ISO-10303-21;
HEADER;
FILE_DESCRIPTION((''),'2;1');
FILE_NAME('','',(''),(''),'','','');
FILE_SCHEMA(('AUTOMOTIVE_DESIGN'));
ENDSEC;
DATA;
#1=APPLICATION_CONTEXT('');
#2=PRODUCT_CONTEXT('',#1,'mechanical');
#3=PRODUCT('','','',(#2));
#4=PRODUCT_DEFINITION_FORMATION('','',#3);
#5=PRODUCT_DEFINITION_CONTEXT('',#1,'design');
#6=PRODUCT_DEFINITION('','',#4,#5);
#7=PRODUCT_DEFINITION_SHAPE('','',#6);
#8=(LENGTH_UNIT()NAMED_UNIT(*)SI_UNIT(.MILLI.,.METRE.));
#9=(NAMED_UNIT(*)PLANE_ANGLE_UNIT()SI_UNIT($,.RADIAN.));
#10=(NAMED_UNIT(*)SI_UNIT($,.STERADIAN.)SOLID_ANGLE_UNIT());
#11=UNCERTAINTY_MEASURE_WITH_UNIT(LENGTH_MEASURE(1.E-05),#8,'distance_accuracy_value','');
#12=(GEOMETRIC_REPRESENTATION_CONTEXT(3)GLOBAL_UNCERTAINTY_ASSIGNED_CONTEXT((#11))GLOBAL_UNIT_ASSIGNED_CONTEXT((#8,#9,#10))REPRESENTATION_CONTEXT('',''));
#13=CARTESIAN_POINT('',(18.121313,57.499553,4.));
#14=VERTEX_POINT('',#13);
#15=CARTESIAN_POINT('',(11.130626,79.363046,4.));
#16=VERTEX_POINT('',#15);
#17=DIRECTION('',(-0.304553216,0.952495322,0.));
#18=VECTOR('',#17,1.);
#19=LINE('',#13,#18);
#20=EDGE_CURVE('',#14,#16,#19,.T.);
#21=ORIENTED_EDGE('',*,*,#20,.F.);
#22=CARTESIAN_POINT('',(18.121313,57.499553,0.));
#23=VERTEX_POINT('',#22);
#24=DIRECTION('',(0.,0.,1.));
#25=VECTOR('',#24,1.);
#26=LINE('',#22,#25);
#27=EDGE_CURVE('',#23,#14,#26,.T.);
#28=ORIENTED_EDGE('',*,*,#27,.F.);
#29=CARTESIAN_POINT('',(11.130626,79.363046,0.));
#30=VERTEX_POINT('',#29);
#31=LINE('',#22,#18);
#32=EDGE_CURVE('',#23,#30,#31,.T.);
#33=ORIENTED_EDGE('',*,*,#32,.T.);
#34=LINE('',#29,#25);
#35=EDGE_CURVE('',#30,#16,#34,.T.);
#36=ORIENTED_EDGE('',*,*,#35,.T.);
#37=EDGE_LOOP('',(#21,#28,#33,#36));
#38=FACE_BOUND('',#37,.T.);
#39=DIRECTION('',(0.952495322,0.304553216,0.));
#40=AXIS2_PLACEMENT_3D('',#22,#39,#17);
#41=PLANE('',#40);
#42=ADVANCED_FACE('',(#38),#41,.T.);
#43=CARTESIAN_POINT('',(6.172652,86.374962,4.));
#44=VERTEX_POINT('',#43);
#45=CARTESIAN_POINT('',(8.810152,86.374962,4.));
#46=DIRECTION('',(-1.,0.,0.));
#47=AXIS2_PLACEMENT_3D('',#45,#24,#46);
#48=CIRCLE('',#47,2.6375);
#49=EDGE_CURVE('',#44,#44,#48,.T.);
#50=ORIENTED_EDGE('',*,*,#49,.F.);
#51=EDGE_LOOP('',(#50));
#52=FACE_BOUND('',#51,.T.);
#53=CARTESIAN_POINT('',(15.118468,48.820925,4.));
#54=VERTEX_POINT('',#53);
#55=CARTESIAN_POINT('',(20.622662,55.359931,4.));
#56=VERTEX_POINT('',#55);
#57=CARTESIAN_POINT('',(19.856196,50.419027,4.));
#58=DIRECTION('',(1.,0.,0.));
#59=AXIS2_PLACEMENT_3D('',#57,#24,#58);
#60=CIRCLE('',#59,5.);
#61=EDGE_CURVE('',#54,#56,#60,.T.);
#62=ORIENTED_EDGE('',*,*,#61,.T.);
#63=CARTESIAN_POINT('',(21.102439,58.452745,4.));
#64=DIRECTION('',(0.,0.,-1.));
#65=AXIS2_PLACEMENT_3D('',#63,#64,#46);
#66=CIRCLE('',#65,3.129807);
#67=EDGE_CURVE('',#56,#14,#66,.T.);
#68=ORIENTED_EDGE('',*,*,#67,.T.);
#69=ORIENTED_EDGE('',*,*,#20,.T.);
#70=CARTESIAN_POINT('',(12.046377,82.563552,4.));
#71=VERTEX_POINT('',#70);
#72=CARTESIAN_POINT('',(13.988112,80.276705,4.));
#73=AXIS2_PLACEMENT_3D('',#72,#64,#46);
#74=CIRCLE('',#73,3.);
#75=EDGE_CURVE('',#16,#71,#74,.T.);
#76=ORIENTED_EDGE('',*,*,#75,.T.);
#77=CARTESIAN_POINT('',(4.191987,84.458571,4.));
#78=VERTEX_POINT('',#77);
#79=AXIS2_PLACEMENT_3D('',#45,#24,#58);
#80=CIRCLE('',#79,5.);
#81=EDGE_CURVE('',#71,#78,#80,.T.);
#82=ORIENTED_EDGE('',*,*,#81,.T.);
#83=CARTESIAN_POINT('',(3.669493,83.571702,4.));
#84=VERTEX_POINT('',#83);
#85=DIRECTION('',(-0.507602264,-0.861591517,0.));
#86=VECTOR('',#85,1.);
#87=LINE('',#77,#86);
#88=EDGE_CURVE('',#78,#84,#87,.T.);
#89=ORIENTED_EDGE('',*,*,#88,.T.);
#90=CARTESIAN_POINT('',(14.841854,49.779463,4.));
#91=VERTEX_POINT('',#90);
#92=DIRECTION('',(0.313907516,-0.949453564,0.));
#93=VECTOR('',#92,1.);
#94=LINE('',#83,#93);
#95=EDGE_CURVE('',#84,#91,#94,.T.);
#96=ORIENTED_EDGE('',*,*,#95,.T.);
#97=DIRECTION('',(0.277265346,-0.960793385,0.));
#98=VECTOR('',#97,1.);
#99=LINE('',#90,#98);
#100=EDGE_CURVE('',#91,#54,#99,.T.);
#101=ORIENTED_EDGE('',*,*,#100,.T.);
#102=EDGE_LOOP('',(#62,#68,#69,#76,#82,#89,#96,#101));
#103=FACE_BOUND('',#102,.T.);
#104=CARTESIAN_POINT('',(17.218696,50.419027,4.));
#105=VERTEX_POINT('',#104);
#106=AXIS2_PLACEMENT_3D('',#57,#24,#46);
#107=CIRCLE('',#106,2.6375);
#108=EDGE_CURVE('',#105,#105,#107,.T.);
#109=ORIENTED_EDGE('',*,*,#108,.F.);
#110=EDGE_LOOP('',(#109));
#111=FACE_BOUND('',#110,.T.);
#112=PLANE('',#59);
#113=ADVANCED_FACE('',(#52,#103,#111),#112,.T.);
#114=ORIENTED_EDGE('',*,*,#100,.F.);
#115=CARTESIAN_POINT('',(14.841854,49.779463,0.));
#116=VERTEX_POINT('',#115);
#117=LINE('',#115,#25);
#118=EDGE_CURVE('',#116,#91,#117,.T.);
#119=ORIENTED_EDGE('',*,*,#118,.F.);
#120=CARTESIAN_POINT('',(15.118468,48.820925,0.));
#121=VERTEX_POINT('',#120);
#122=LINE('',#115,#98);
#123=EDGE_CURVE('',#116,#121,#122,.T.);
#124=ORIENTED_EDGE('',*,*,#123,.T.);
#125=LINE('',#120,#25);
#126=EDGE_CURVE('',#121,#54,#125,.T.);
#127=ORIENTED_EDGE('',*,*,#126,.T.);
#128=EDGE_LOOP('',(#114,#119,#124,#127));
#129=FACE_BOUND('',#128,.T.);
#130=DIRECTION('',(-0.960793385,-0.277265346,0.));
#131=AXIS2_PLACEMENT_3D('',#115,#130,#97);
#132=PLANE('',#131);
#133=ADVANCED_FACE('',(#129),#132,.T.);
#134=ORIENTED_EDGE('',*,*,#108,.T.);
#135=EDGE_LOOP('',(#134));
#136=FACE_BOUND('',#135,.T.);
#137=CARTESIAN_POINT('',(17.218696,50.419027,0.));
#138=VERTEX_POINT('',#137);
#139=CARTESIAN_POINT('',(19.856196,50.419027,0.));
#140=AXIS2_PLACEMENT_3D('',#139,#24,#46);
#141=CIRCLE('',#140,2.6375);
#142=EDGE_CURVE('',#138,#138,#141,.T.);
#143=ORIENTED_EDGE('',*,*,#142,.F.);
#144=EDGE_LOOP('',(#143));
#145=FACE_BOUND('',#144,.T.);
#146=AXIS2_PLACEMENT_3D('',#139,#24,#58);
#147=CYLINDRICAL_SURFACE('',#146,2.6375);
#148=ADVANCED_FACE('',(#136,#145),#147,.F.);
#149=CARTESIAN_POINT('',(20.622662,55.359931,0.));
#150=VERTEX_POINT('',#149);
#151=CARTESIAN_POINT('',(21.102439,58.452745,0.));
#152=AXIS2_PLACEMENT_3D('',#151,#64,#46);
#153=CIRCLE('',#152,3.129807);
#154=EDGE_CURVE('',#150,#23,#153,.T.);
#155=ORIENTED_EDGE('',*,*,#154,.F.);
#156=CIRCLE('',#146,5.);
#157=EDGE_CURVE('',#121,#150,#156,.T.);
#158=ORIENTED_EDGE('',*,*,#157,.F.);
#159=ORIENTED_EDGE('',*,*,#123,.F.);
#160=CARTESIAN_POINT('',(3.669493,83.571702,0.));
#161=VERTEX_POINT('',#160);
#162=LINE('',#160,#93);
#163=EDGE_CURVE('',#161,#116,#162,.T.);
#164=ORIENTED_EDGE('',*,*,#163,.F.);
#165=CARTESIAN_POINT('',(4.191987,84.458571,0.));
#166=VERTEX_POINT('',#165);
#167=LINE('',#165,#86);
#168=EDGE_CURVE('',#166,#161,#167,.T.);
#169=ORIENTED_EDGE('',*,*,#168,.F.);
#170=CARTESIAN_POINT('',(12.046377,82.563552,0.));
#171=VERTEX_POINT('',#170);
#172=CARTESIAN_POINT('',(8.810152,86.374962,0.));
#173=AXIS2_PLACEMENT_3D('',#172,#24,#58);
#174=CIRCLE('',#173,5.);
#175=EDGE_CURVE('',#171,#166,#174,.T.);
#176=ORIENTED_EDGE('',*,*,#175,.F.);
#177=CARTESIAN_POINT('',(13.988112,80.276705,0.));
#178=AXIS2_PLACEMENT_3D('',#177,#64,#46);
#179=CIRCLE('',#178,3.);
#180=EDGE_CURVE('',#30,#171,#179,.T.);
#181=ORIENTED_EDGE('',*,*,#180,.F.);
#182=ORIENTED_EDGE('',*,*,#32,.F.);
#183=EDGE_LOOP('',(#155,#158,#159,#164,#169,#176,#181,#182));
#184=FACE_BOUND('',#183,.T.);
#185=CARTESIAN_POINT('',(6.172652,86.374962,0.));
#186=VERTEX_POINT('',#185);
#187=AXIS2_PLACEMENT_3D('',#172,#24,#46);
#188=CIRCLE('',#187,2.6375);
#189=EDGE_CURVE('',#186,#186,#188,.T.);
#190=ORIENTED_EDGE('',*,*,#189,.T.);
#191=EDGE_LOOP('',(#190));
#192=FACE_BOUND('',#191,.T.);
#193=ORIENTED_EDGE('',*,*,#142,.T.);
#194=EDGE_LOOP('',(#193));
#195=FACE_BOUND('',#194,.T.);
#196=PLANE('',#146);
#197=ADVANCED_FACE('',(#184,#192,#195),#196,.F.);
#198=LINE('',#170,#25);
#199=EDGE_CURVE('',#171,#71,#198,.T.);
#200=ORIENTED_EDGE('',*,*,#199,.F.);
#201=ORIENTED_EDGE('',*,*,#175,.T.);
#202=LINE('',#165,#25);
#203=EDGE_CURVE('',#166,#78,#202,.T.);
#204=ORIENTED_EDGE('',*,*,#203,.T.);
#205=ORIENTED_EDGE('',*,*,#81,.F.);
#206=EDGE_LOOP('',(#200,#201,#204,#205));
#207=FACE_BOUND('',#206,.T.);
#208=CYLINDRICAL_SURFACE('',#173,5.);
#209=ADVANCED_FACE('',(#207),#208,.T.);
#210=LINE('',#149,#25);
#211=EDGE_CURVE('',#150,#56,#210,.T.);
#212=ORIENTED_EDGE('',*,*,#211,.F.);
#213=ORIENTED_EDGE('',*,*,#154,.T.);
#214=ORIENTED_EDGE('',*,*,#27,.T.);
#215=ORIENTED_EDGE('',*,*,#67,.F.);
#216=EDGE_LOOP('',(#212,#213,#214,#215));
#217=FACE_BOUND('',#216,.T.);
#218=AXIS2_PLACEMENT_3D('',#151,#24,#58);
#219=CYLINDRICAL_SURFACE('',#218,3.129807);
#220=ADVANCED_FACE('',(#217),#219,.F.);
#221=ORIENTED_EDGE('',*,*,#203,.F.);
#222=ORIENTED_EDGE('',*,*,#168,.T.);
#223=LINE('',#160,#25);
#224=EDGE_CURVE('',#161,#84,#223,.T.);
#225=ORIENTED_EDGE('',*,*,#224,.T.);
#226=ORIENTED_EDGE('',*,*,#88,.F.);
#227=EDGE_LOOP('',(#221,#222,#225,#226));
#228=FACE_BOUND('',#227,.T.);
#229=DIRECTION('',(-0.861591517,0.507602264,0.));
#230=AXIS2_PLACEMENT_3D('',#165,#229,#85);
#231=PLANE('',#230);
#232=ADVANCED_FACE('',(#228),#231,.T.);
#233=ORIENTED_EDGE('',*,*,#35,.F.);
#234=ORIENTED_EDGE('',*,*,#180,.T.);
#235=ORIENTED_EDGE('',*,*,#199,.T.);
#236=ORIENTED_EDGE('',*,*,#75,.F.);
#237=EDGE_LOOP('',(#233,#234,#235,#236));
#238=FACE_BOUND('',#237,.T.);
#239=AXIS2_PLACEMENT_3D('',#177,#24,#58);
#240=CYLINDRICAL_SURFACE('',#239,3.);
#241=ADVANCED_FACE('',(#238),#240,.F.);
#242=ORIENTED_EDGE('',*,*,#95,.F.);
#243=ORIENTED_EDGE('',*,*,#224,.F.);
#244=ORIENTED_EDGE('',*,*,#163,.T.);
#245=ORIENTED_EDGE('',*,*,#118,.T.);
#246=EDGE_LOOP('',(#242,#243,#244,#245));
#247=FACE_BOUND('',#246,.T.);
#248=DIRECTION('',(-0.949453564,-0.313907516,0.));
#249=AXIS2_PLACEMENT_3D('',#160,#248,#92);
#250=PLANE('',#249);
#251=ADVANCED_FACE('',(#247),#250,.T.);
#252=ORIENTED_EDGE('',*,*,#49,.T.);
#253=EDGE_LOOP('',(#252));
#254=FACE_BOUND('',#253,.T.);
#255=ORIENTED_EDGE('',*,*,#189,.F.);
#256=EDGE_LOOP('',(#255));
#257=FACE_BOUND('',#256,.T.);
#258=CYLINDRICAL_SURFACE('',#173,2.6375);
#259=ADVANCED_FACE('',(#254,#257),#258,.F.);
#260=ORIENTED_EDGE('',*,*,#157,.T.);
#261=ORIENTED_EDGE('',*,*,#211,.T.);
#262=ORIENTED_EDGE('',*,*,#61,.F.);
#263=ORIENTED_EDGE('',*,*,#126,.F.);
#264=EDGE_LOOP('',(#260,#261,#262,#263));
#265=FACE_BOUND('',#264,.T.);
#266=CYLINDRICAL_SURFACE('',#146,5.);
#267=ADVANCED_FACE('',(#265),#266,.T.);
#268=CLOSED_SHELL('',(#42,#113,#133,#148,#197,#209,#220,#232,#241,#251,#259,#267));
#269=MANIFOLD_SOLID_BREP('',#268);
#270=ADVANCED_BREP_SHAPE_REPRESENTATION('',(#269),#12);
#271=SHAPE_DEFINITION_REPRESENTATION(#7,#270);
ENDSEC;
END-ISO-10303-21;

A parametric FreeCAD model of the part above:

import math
import FreeCAD as App
import Part
import Sketcher

V = App.Vector
Q = App.Units.Quantity

doc = App.newDocument("Part")
body = doc.addObject("PartDesign::Body", "Body")

# Sketch on XY plane
sketch1 = doc.addObject("Sketcher::SketchObject", "Sketch")
body.addObject(sketch1)
sketch1.AttachmentSupport = (doc.XY_Plane, [""])
sketch1.MapMode = "FlatFace"
sketch1.AttachmentOffset = App.Placement(V(0, 0, 4), App.Rotation())
sketch1.addGeometry([
    Part.LineSegment(V(18.121313, 57.499553, 0), V(11.130626, 79.363046, 0)),  # 0
    Part.ArcOfCircle(Part.Circle(V(13.988112, 80.276705, 0), V(0, 0, 1), 3), math.radians(130.334207), math.radians(197.731286)),  # 1
    Part.ArcOfCircle(Part.Circle(V(8.810152, 86.374962, 0), V(0, 0, 1), 5), math.radians(-49.665793), math.radians(202.536889)),  # 2
    Part.LineSegment(V(4.191987, 84.458571, 0), V(3.669493, 83.571702, 0)),  # 3
    Part.LineSegment(V(3.669493, 83.571702, 0), V(14.841854, 49.779463, 0)),  # 4
    Part.LineSegment(V(14.841854, 49.779463, 0), V(15.118468, 48.820925, 0)),  # 5
    Part.ArcOfCircle(Part.Circle(V(19.856196, 50.419027, 0), V(0, 0, 1), 5), math.radians(-161.360032), math.radians(81.182188)),  # 6
    Part.ArcOfCircle(Part.Circle(V(21.102439, 58.452745, 0), V(0, 0, 1), 3.129807), math.radians(-162.268714), math.radians(-98.817812)),  # 7
    Part.Circle(V(19.856196, 50.419027, 0), V(0, 0, 1), 2.6375),  # 8
    Part.Circle(V(8.810152, 86.374962, 0), V(0, 0, 1), 2.6375),  # 9
], False)
sketch1.addConstraint([
    Sketcher.Constraint("Tangent", 0, 2, 1, 2),
    Sketcher.Constraint("Tangent", 1, 1, 2, 1),
    Sketcher.Constraint("Coincident", 2, 2, 3, 1),
    Sketcher.Constraint("Coincident", 3, 2, 4, 1),
    Sketcher.Constraint("Coincident", 4, 2, 5, 1),
    Sketcher.Constraint("Coincident", 5, 2, 6, 1),
    Sketcher.Constraint("Tangent", 6, 2, 7, 2),
    Sketcher.Constraint("Tangent", 7, 1, 0, 1),
    Sketcher.Constraint("Coincident", 8, 3, 6, 3),
    Sketcher.Constraint("Coincident", 9, 3, 2, 3),
    Sketcher.Constraint("Equal", 2, 6),
    Sketcher.Constraint("Equal", 8, 9),
    Sketcher.Constraint("Radius", 1, Q("3 mm")),
    Sketcher.Constraint("Radius", 2, Q("5 mm")),
    Sketcher.Constraint("Diameter", 8, Q("5.275 mm")),
    Sketcher.Constraint("Radius", 7, Q("3.129807 mm")),
    Sketcher.Constraint("DistanceY", 7, 3, 0, 2, Q("20.9103 mm")),
    Sketcher.Constraint("DistanceY", 5, 2, 6, 3, Q("1.598102 mm")),
    Sketcher.Constraint("Distance", 0, Q("22.953911 mm")),
    Sketcher.Constraint("Distance", 4, Q("35.59125 mm")),
    Sketcher.Constraint("DistanceX", -1, 1, 1, 3, Q("13.988112 mm")),
    Sketcher.Constraint("DistanceX", -1, 1, 2, 3, Q("8.810152 mm")),
    Sketcher.Constraint("DistanceY", -1, 1, 2, 3, Q("86.374962 mm")),
    Sketcher.Constraint("DistanceY", -1, 1, 2, 2, Q("84.458571 mm")),
    Sketcher.Constraint("DistanceX", -1, 1, 6, 2, Q("20.622662 mm")),
    Sketcher.Constraint("DistanceY", 3, 2, 2, 2, Q("0.886869 mm")),
    Sketcher.Constraint("DistanceX", 3, 2, 9, 3, Q("5.140659 mm")),
    Sketcher.Constraint("DistanceX", 1, 3, 4, 2, Q("0.853742 mm")),
])
pad1 = doc.addObject("PartDesign::Pad", "Pad")
body.addObject(pad1)
pad1.Profile = sketch1
pad1.Length = 4
pad1.Reversed = True

doc.recompute()
